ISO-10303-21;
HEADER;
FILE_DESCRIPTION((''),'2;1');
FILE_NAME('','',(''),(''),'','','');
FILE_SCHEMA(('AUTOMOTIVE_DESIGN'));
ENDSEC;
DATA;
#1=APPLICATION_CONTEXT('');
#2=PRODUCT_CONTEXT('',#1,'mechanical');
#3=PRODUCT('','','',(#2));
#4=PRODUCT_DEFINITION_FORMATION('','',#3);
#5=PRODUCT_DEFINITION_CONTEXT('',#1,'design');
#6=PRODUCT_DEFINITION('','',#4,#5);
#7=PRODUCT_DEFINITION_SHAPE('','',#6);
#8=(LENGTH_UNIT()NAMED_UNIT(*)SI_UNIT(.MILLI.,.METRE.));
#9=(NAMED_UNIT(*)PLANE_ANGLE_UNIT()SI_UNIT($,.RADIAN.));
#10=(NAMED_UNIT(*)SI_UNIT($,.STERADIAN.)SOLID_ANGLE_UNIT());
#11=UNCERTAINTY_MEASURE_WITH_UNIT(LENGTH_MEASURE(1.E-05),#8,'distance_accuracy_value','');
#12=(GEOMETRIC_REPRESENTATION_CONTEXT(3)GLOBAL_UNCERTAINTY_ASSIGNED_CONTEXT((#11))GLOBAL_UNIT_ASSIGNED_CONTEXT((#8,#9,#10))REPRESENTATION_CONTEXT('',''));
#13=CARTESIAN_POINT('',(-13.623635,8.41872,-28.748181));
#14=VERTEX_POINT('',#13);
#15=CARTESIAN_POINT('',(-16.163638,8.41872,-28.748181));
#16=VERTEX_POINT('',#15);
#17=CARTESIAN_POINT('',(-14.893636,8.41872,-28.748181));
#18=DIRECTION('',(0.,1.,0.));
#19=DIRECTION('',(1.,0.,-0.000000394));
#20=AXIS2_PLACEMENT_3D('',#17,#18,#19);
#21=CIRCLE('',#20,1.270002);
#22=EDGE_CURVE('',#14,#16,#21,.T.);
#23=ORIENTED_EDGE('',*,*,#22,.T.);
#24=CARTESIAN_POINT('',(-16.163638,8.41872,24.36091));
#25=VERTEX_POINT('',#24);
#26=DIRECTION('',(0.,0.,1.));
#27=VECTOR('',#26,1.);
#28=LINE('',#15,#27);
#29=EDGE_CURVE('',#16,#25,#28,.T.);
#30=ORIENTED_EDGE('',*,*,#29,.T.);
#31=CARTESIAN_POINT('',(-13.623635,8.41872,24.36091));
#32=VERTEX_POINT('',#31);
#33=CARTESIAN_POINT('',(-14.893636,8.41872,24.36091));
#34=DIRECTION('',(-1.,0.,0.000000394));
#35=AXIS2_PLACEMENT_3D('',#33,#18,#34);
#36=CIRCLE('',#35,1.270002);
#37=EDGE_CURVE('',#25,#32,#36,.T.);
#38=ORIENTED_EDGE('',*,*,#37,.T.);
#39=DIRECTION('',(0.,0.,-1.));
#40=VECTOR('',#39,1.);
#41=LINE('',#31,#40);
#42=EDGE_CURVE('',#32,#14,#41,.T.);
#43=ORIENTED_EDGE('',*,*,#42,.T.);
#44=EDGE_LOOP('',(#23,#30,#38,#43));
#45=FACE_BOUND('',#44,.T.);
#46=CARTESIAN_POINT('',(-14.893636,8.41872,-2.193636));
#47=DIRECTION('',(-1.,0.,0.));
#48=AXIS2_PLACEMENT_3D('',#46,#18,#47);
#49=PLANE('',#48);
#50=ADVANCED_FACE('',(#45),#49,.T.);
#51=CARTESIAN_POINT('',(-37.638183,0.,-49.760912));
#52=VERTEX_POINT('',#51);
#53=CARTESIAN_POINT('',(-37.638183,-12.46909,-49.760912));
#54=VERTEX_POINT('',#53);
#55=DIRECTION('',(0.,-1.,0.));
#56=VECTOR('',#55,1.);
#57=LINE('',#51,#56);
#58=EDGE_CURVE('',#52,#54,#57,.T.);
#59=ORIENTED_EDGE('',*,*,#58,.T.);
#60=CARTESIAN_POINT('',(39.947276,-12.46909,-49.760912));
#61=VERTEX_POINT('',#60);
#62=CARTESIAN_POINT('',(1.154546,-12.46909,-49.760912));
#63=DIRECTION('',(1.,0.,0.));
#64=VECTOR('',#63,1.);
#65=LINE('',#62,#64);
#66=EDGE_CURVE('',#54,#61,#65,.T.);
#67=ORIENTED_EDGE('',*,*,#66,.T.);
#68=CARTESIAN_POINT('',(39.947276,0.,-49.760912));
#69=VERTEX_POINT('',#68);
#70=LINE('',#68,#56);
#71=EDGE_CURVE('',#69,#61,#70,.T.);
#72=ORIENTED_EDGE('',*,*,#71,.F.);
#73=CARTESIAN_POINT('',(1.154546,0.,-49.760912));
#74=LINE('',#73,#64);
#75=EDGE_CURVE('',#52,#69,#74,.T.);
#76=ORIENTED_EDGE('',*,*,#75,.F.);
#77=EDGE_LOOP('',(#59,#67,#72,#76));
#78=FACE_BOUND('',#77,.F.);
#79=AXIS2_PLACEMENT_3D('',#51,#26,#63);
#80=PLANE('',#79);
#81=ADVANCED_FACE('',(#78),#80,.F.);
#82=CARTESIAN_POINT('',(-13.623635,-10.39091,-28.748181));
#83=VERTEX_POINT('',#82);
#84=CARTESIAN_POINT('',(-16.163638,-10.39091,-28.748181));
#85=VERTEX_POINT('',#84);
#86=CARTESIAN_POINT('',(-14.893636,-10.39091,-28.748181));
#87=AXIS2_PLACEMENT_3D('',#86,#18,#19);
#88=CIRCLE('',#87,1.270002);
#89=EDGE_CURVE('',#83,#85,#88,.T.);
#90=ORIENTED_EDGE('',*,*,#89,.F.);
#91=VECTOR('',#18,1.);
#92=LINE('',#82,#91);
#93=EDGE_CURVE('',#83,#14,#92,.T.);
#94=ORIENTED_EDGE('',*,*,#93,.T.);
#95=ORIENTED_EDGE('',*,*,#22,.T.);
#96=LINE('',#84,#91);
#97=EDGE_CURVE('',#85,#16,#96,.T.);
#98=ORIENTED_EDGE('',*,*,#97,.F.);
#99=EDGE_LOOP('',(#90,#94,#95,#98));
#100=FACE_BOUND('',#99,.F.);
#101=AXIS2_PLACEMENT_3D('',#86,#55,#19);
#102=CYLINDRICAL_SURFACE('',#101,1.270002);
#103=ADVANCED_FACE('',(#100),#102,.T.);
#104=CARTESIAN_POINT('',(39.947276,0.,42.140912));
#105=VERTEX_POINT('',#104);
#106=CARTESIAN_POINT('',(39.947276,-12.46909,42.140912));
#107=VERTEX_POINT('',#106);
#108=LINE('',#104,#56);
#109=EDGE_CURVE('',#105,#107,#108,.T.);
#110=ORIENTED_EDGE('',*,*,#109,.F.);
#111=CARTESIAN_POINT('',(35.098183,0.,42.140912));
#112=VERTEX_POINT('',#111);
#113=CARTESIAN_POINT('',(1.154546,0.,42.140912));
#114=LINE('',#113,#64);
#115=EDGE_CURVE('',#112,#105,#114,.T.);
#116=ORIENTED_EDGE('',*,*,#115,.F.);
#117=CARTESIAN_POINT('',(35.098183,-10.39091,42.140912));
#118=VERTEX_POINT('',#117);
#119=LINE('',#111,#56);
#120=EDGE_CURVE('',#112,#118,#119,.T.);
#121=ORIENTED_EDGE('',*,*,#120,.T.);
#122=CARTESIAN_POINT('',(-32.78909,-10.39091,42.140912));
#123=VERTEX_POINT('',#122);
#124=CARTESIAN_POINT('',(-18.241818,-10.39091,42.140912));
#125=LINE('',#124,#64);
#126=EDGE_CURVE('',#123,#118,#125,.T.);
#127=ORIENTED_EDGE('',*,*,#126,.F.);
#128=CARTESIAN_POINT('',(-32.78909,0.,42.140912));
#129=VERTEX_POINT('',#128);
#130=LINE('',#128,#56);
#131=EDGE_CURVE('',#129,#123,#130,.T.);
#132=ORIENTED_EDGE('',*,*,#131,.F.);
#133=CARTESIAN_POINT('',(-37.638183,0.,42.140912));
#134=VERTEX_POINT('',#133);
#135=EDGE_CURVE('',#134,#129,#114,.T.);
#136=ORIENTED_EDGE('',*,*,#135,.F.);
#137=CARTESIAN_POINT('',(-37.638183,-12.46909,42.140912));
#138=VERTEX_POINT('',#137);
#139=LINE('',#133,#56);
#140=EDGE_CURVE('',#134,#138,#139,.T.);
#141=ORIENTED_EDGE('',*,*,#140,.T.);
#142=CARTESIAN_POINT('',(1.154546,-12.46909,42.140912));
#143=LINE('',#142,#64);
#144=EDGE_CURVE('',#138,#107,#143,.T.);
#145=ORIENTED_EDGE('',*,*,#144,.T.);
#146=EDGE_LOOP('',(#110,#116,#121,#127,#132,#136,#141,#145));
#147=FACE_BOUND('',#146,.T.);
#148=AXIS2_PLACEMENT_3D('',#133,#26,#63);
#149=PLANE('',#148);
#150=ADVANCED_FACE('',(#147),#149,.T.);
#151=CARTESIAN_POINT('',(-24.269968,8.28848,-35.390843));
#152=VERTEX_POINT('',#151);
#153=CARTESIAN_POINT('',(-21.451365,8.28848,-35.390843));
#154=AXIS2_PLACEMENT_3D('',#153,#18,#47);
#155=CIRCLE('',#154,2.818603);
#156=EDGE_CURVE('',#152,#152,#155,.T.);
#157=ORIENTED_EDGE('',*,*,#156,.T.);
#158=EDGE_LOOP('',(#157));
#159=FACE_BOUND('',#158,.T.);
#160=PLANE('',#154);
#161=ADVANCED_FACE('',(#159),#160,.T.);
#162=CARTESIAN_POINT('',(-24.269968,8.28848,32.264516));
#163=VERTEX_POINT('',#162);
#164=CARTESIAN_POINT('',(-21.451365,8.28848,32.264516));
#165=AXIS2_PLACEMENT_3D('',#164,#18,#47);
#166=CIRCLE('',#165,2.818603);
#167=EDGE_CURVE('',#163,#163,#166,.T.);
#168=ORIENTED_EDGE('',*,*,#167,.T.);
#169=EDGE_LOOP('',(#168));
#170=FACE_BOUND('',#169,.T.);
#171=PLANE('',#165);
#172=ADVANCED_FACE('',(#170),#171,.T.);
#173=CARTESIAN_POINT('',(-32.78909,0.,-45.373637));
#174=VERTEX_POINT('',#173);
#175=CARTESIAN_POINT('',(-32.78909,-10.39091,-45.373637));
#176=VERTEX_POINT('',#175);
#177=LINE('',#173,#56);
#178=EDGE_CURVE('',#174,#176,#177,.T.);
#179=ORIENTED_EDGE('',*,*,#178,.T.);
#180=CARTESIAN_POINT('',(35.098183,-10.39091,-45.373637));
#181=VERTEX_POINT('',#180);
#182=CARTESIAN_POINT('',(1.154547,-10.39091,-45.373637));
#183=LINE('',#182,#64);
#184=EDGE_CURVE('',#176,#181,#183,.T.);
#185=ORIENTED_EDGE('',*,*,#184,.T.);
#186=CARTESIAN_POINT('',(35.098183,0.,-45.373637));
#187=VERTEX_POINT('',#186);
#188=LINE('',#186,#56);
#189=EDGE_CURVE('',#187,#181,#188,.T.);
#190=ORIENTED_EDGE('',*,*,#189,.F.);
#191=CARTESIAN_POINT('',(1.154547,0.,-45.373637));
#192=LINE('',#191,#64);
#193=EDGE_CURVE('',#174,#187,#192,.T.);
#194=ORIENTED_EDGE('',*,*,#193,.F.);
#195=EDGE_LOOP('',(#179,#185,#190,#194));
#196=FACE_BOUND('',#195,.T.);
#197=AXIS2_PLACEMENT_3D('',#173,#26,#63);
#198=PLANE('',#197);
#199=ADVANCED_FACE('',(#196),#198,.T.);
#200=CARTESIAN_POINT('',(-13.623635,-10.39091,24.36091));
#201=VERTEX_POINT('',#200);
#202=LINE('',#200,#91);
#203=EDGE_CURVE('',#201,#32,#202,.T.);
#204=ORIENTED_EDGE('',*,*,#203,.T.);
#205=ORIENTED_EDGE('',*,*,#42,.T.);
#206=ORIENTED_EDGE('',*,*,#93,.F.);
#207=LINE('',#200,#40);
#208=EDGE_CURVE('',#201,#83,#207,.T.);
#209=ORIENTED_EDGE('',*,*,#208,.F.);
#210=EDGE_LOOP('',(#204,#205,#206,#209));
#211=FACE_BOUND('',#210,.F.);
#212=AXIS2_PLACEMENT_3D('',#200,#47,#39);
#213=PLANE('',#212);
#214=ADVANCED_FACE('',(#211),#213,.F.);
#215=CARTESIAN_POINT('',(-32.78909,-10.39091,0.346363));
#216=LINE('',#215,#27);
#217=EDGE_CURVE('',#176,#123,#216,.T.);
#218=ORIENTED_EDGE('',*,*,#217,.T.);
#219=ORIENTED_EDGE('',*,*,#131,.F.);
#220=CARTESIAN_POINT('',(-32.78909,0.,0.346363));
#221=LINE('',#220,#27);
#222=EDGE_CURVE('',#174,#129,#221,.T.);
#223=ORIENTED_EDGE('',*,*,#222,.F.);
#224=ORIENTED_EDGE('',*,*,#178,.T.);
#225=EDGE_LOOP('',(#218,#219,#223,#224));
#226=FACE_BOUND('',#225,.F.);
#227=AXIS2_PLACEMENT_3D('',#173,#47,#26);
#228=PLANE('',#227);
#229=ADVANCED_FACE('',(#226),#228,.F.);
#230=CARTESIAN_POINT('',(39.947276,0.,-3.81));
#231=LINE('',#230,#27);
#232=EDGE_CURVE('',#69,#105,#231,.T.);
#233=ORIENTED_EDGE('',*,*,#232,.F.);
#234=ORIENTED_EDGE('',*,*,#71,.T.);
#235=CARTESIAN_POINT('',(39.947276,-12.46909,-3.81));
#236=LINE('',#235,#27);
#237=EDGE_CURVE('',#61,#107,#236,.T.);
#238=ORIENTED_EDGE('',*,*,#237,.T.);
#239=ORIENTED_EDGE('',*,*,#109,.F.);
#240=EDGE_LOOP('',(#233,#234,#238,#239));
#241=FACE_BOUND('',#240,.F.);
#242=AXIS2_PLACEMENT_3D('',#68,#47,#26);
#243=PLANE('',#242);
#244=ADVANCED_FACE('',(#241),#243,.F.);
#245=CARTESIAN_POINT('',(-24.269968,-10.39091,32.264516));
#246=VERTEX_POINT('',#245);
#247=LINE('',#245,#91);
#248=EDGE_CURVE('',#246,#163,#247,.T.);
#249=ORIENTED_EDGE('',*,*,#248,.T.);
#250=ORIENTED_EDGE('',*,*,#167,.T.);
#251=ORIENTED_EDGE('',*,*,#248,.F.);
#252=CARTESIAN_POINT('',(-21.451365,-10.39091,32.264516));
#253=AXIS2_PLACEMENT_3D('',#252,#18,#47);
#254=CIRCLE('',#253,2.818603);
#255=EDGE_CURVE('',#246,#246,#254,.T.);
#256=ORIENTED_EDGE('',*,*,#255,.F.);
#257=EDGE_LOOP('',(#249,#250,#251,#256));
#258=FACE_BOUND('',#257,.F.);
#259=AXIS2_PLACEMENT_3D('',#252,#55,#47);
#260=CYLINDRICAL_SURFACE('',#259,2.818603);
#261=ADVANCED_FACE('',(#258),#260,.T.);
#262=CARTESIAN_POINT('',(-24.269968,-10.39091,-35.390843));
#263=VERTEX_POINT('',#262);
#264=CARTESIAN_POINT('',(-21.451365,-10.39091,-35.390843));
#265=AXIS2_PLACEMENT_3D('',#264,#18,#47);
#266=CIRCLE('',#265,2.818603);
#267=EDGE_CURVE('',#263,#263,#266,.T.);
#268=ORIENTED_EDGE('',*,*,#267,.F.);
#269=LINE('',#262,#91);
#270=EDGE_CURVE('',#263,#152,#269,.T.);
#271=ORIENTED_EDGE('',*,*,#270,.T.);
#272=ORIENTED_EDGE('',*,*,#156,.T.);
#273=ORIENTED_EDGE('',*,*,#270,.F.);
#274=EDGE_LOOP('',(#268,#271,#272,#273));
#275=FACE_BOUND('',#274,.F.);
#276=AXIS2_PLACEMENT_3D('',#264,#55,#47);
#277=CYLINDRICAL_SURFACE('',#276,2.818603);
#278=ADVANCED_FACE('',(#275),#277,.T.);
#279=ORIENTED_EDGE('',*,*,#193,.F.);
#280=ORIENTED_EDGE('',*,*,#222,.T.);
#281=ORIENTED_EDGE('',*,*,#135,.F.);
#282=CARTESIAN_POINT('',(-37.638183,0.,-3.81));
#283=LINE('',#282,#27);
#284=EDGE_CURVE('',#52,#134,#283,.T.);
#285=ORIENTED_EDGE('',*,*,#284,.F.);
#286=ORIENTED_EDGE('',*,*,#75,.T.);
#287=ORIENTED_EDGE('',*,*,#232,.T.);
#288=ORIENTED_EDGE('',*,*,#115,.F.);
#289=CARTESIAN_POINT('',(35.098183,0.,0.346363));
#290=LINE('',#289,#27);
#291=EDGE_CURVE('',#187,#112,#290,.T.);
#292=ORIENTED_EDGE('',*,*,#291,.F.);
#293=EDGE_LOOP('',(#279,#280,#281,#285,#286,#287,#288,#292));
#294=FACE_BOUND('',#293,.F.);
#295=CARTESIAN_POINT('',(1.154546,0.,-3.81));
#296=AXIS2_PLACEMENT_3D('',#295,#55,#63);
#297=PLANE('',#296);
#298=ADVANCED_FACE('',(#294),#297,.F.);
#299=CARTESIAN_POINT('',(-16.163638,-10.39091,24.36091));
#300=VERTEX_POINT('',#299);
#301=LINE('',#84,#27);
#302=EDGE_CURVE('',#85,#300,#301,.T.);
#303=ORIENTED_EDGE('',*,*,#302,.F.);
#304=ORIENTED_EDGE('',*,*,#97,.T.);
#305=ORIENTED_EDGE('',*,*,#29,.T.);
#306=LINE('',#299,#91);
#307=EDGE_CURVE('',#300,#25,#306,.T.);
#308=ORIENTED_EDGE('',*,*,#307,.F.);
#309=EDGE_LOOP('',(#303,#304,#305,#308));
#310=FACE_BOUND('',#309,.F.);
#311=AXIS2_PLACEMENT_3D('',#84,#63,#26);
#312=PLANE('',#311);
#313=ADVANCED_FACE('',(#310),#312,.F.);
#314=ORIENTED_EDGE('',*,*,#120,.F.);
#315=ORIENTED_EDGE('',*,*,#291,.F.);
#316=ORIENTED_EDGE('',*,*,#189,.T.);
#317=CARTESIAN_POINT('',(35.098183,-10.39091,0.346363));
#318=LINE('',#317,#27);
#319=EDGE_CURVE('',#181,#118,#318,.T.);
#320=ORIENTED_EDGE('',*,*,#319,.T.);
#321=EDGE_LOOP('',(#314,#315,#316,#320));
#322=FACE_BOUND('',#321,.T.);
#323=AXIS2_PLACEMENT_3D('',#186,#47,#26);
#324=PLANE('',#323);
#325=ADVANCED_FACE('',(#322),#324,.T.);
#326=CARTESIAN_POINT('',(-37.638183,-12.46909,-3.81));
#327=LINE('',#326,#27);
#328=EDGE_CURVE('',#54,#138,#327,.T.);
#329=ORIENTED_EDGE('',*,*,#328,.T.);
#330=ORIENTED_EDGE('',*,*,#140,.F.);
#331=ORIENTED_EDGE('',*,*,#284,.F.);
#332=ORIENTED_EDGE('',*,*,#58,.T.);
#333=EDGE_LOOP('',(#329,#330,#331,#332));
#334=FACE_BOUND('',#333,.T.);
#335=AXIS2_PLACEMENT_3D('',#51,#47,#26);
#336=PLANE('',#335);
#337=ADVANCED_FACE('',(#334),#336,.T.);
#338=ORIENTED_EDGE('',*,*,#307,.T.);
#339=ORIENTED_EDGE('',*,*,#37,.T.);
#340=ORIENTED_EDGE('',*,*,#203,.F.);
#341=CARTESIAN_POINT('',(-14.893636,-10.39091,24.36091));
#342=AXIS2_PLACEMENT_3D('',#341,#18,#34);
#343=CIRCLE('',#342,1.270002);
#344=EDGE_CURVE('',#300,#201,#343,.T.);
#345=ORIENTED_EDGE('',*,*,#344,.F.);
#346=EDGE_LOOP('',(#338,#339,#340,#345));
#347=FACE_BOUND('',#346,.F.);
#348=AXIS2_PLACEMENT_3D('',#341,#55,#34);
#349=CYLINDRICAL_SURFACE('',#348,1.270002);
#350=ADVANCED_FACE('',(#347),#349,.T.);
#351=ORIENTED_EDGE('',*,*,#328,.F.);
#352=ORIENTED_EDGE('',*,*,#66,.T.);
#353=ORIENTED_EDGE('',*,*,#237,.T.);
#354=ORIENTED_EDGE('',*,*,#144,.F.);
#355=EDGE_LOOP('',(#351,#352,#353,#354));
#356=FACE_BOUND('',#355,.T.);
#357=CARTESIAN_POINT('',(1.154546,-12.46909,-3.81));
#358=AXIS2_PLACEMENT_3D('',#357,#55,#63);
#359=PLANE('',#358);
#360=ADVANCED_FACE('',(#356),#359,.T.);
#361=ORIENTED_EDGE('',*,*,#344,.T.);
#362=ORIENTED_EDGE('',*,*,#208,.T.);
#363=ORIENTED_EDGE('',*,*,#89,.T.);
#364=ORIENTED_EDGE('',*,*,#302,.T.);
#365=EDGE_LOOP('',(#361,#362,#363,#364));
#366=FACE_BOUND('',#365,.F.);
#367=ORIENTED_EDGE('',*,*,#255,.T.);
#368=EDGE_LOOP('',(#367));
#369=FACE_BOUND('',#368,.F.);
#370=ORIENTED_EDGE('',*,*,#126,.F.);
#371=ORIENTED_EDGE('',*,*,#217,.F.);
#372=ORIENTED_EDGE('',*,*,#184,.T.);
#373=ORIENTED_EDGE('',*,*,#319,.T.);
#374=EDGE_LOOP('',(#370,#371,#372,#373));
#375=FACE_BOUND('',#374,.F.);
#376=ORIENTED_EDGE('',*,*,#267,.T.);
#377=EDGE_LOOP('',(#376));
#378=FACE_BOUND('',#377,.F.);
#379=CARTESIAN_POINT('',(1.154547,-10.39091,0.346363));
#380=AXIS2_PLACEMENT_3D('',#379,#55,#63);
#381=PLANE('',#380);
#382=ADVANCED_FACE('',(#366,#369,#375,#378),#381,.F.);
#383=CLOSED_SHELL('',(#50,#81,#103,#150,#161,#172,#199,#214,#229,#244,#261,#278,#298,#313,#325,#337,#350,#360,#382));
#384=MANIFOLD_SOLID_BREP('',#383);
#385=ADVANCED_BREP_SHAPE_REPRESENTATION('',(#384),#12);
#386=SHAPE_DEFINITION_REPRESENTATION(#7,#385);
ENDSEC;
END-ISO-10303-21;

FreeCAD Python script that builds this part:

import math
import FreeCAD as App
import Part
import Sketcher
from FreeCAD import Vector
Q = App.Units.Quantity


def add_polygon(sketch, points):
    """Adds a closed chain of lines whose ends are joined by coincident constraints."""
    first, n = sketch.GeometryCount, len(points)
    for a, b in zip(points, points[1:] + points[:1]):
        sketch.addGeometry(Part.LineSegment(App.Vector(*a, 0), App.Vector(*b, 0)), False)
    for i in range(n):
        sketch.addConstraint(Sketcher.Constraint("Coincident", first + i, 2, first + (i + 1) % n, 1))

doc = App.newDocument("Part")
body = doc.addObject("PartDesign::Body", "Body")

# Sketch on XZ plane
sketch1 = doc.addObject("Sketcher::SketchObject", "Sketch")
body.addObject(sketch1)
sketch1.AttachmentSupport = (doc.XZ_Plane, [""])
sketch1.MapMode = "FlatFace"
add_polygon(sketch1, [(-38, 42), (-38, -50), (40, -50), (40, 42)])  # lines 0-3
sketch1.addConstraint([
    Sketcher.Constraint("Vertical", 0),
    Sketcher.Constraint("Horizontal", 1),
    Sketcher.Constraint("Vertical", 2),
    Sketcher.Constraint("Horizontal", 3),
    Sketcher.Constraint("DistanceX", 1, 1, 1, 2, 77.585459),
    Sketcher.Constraint("DistanceY", 0, 2, 0, 1, 91.901824),
    Sketcher.Constraint("DistanceY", 0, 2, -1, 1, 49.760912),
    Sketcher.Constraint("DistanceX", 0, 2, -1, 1, 37.638183),
])
pad1 = doc.addObject("PartDesign::Pad", "Pad")
body.addObject(pad1)
pad1.Profile = sketch1
pad1.Length = 12.46909

# Sketch on XZ plane
sketch2 = doc.addObject("Sketcher::SketchObject", "Sketch001")
body.addObject(sketch2)
sketch2.AttachmentSupport = (doc.XZ_Plane, [""])
sketch2.MapMode = "FlatFace"
add_polygon(sketch2, [(-33, 46), (-33, -45), (35, -45), (35, 46)])  # lines 0-3
sketch2.addConstraint([
    Sketcher.Constraint("Vertical", 0),
    Sketcher.Constraint("Horizontal", 1),
    Sketcher.Constraint("Vertical", 2),
    Sketcher.Constraint("Horizontal", 3),
    Sketcher.Constraint("DistanceY", 0, 2, 0, 1, Q("3.6 in")),
    Sketcher.Constraint("DistanceX", 1, 1, 1, 2, 67.887273),
    Sketcher.Constraint("DistanceX", 0, 2, -1, 1, 32.78909),
    Sketcher.Constraint("DistanceY", 0, 2, -1, 1, 45.373637),
])
pocket1 = doc.addObject("PartDesign::Pocket", "Pocket")
body.addObject(pocket1)
pocket1.Profile = sketch2
pocket1.Length = 10.39091
pocket1.Reversed = True

# Sketch on XZ plane
sketch3 = doc.addObject("Sketcher::SketchObject", "Sketch002")
body.addObject(sketch3)
sketch3.AttachmentSupport = (doc.XZ_Plane, [""])
sketch3.MapMode = "FlatFace"
sketch3.AttachmentOffset = App.Placement(Vector(0, 0, 10.39091), App.Rotation())
sketch3.addGeometry([
    Part.Circle(Vector(-21.5, 32.3, 0), Vector(0, 0, 1), 2.8),
    Part.Circle(Vector(-21.5, -35.4, 0), Vector(0, 0, 1), 2.8),
], False)
sketch3.addConstraint([
    Sketcher.Constraint("Equal", 0, 1),
    Sketcher.Constraint("Vertical", 0, 3, 1, 3),
    Sketcher.Constraint("Diameter", 0, 5.637206),
    Sketcher.Constraint("DistanceY", 1, 3, 0, 3, 67.655359),
    Sketcher.Constraint("DistanceX", 0, 3, -1, 1, 21.451365),
    Sketcher.Constraint("DistanceY", -1, 1, 0, 3, 32.264516),
])
pad2 = doc.addObject("PartDesign::Pad", "Pad001")
body.addObject(pad2)
pad2.Profile = sketch3
pad2.Length = 18.67939
pad2.Reversed = True

# Sketch on XZ plane
sketch4 = doc.addObject("Sketcher::SketchObject", "Sketch003")
body.addObject(sketch4)
sketch4.AttachmentSupport = (doc.XZ_Plane, [""])
sketch4.MapMode = "FlatFace"
sketch4.AttachmentOffset = App.Placement(Vector(0, 0, 10.39091), App.Rotation())
sketch4.addGeometry([
    Part.ArcOfCircle(Part.Circle(Vector(-14.9, 24.4, 0), Vector(0, 0, 1), 1.3), math.radians(0), math.radians(180)),
    Part.LineSegment(Vector(-13.6, 24.4, 0), Vector(-13.6, -28.7, 0)),
    Part.ArcOfCircle(Part.Circle(Vector(-14.9, -28.7, 0), Vector(0, 0, 1), 1.3), math.radians(-180), math.radians(0)),
    Part.LineSegment(Vector(-16.2, -28.7, 0), Vector(-16.2, 24.4, 0)),
], False)
sketch4.addConstraint([
    Sketcher.Constraint("Tangent", 0, 1, 1, 1),
    Sketcher.Constraint("Tangent", 1, 2, 2, 2),
    Sketcher.Constraint("Tangent", 2, 1, 3, 1),
    Sketcher.Constraint("Tangent", 3, 2, 0, 2),
    Sketcher.Constraint("Vertical", 1),
    Sketcher.Constraint("Vertical", 3),
    Sketcher.Constraint("Radius", 0, Q("0.0500001 in")),
    Sketcher.Constraint("DistanceY", 1, 2, 1, 1, 53.109091),
    Sketcher.Constraint("DistanceY", -1, 1, 0, 3, 24.36091),
    Sketcher.Constraint("DistanceX", 0, 3, -1, 1, 14.893636),
])
pad3 = doc.addObject("PartDesign::Pad", "Pad002")
body.addObject(pad3)
pad3.Profile = sketch4
pad3.Length = 18.80963
pad3.Reversed = True

doc.recompute()
